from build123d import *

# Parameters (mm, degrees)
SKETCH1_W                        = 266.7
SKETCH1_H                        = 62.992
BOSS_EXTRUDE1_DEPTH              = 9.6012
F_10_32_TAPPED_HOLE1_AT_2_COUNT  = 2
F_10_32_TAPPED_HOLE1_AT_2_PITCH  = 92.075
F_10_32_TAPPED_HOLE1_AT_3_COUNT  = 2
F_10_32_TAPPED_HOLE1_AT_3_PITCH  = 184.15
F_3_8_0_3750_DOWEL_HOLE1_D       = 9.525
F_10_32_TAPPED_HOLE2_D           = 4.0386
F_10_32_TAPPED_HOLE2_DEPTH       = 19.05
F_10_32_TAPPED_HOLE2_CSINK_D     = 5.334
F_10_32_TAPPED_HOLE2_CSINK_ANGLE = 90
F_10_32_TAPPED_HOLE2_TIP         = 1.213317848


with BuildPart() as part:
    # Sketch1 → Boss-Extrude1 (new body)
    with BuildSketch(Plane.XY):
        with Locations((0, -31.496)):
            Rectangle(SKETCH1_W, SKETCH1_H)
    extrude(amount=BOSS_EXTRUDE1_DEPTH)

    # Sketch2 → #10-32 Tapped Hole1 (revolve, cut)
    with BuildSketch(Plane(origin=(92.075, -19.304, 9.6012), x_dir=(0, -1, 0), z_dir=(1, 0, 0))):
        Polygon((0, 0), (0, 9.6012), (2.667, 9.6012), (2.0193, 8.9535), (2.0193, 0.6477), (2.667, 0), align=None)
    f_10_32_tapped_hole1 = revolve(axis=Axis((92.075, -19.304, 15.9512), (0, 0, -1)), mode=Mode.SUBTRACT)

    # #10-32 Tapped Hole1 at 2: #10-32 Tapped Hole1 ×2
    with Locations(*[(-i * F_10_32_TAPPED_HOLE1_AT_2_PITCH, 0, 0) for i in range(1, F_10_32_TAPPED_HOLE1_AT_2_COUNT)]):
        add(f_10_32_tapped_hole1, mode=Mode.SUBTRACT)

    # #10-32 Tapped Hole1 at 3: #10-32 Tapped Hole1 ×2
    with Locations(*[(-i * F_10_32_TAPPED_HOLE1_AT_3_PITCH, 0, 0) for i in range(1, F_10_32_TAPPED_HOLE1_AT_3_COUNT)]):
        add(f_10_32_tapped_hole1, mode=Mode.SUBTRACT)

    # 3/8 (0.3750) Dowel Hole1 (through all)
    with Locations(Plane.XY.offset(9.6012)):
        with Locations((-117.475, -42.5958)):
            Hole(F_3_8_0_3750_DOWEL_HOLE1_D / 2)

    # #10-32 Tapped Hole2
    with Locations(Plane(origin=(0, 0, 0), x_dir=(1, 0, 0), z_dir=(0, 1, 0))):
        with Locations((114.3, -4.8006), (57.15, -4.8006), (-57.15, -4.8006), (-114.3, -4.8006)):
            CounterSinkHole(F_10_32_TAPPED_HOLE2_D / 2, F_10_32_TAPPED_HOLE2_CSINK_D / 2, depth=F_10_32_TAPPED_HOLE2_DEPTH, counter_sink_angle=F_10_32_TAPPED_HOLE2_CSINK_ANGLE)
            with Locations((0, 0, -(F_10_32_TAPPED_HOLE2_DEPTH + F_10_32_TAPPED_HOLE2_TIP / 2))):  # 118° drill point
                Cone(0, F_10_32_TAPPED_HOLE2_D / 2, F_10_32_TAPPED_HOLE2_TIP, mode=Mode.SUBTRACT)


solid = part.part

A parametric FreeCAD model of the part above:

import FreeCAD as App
import Part
import Sketcher
from FreeCAD import Vector
Q = App.Units.Quantity


def add_polygon(sketch, points):
    """Adds a closed chain of lines whose ends are joined by coincident constraints."""
    first, n = sketch.GeometryCount, len(points)
    for a, b in zip(points, points[1:] + points[:1]):
        sketch.addGeometry(Part.LineSegment(App.Vector(*a, 0), App.Vector(*b, 0)), False)
    for i in range(n):
        sketch.addConstraint(Sketcher.Constraint("Coincident", first + i, 2, first + (i + 1) % n, 1))

doc = App.newDocument("Part")
body = doc.addObject("PartDesign::Body", "Body")

# Sketch on XY plane
sketch1 = body.newObject("Sketcher::SketchObject", "Sketch")
sketch1.AttachmentSupport = (doc.getObject("XY_Plane"), [""])
sketch1.MapMode = "FlatFace"
add_polygon(sketch1, [(-133, 0), (-133, -63), (133, -63), (133, 0)])  # lines 0-3
sketch1.addConstraint(Sketcher.Constraint("Vertical", 0))
sketch1.addConstraint(Sketcher.Constraint("Horizontal", 1))
sketch1.addConstraint(Sketcher.Constraint("Vertical", 2))
sketch1.addConstraint(Sketcher.Constraint("Horizontal", 3))
sketch1.addConstraint(Sketcher.Constraint("Symmetric", 2, 2, 3, 2, -1, 1))
sketch1.addConstraint(Sketcher.Constraint("DistanceX", 1, 1, 1, 2, Q("10.5 in")))
sketch1.addConstraint(Sketcher.Constraint("DistanceY", 0, 2, 0, 1, Q("2.48 in")))
pad1 = body.newObject("PartDesign::Pad", "Pad")
pad1.Profile = sketch1
pad1.Length = Q("0.378 in")

# Sketch on YZ plane
sketch2 = body.newObject("Sketcher::SketchObject", "Sketch001")
sketch2.AttachmentSupport = (doc.getObject("YZ_Plane"), [""])
sketch2.MapMode = "FlatFace"
sketch2.AttachmentOffset = App.Placement(Vector(0, 0, 3.625 * 25.4), App.Rotation())
add_polygon(sketch2, [(-19.3, 0), (-19.3, 9.6), (-22, 9.6), (-21.3, 9), (-21.3, 0.6), (-22, 0)])  # lines 0-5
sketch2.addGeometry(Part.LineSegment(Vector(-19.3, 9.6, 0), Vector(-19.3, 0, 0)), True)  # axis
sketch2.addConstraint(Sketcher.Constraint("Vertical", 0))
sketch2.addConstraint(Sketcher.Constraint("Horizontal", 1))
sketch2.addConstraint(Sketcher.Constraint("Vertical", 3))
sketch2.addConstraint(Sketcher.Constraint("Horizontal", 5))
sketch2.addConstraint(Sketcher.Constraint("Vertical", 6))
sketch2.addConstraint(Sketcher.Constraint("Coincident", 6, 1, 0, 2))
sketch2.addConstraint(Sketcher.Constraint("PointOnObject", 4, 2, -1))
sketch2.addConstraint(Sketcher.Constraint("PointOnObject", 6, 2, -1))
sketch2.addConstraint(Sketcher.Constraint("Perpendicular", 2, 4))
sketch2.addConstraint(Sketcher.Constraint("Vertical", 1, 2, 4, 2))
sketch2.addConstraint(Sketcher.Constraint("Equal", 2, 4))
sketch2.addConstraint(Sketcher.Constraint("DistanceX", 1, 2, 1, 1, Q("0.105 in")))
sketch2.addConstraint(Sketcher.Constraint("DistanceY", 0, 1, 0, 2, Q("0.378 in")))
sketch2.addConstraint(Sketcher.Constraint("DistanceY", 3, 2, 3, 1, Q("0.327 in")))
sketch2.addConstraint(Sketcher.Constraint("DistanceX", 0, 2, -1, 1, Q("0.76 in")))
groove = body.newObject("PartDesign::Groove", "Groove")
groove.Profile = sketch2
groove.ReferenceAxis = (sketch2, ["Axis0"])
groove.Angle = 360
doc.recompute()

linearpattern = body.newObject("PartDesign::LinearPattern", "LinearPattern")
linearpattern.Originals = [groove]
linearpattern.Direction = (doc.getObject("X_Axis"), [""])
linearpattern.Mode = "offset"
linearpattern.Offset = Q("3.625 in")
linearpattern.Occurrences = 2
linearpattern.Reversed = True
body.Tip = linearpattern
doc.recompute()

linearpattern2 = body.newObject("PartDesign::LinearPattern", "LinearPattern001")
linearpattern2.Originals = [groove]
linearpattern2.Direction = (doc.getObject("X_Axis"), [""])
linearpattern2.Mode = "offset"
linearpattern2.Offset = Q("7.25 in")
linearpattern2.Occurrences = 2
linearpattern2.Reversed = True
body.Tip = linearpattern2

# Sketch on XY plane
sketch3 = body.newObject("Sketcher::SketchObject", "Sketch002")
sketch3.AttachmentSupport = (doc.getObject("XY_Plane"), [""])
sketch3.MapMode = "FlatFace"
sketch3.AttachmentOffset = App.Placement(Vector(0, 0, 0.378 * 25.4), App.Rotation())
sketch3.addGeometry(Part.Circle(Vector(-117.5, -42.6, 0), Vector(0, 0, 1), 4.8), False)
sketch3.addConstraint(Sketcher.Constraint("Diameter", 0, Q("0.375 in")))
sketch3.addConstraint(Sketcher.Constraint("DistanceX", 0, 3, -1, 1, Q("4.625 in")))
sketch3.addConstraint(Sketcher.Constraint("DistanceY", 0, 3, -1, 1, Q("1.677 in")))
doc.recompute()
hole = body.newObject("PartDesign::Hole", "Hole")
hole.Profile = sketch3
hole.ThreadType = "None"
hole.Diameter = Q("0.375 in")
hole.DepthType = "ThroughAll"

# Sketch on XZ plane
sketch4 = body.newObject("Sketcher::SketchObject", "Sketch003")
sketch4.AttachmentSupport = (doc.getObject("XZ_Plane"), [""])
sketch4.MapMode = "FlatFace"
sketch4.addGeometry(Part.Circle(Vector(114.3, 4.8, 0), Vector(0, 0, 1), 2), False)
sketch4.addGeometry(Part.Circle(Vector(57.1, 4.8, 0), Vector(0, 0, 1), 2), False)
sketch4.addGeometry(Part.Circle(Vector(-57.1, 4.8, 0), Vector(0, 0, 1), 2), False)
sketch4.addGeometry(Part.Circle(Vector(-114.3, 4.8, 0), Vector(0, 0, 1), 2), False)
sketch4.addConstraint(Sketcher.Constraint("Equal", 0, 1))
sketch4.addConstraint(Sketcher.Constraint("Equal", 1, 2))
sketch4.addConstraint(Sketcher.Constraint("Equal", 2, 3))
sketch4.addConstraint(Sketcher.Constraint("Symmetric", 1, 3, 2, 3, -2))
sketch4.addConstraint(Sketcher.Constraint("Symmetric", 0, 3, 3, 3, -2))
sketch4.addConstraint(Sketcher.Constraint("Horizontal", 0, 3, 1, 3))
sketch4.addConstraint(Sketcher.Constraint("Diameter", 0, Q("0.159 in")))
sketch4.addConstraint(Sketcher.Constraint("DistanceX", 3, 3, 0, 3, Q("9 in")))
sketch4.addConstraint(Sketcher.Constraint("DistanceX", 2, 3, 1, 3, Q("4.5 in")))
sketch4.addConstraint(Sketcher.Constraint("DistanceY", -1, 1, 0, 3, Q("0.189 in")))
doc.recompute()
hole2 = body.newObject("PartDesign::Hole", "Hole001")
hole2.Profile = sketch4
hole2.ThreadType = "None"
hole2.Diameter = Q("0.159 in")
hole2.DepthType = "Dimension"
hole2.Depth = Q("0.75 in")
hole2.DrillPoint = "Angled"
hole2.DrillPointAngle = 118
hole2.HoleCutType = "Countersink"
hole2.HoleCutDiameter = Q("0.21 in")
hole2.HoleCutCountersinkAngle = 90
hole2.Reversed = True

doc.recompute()
